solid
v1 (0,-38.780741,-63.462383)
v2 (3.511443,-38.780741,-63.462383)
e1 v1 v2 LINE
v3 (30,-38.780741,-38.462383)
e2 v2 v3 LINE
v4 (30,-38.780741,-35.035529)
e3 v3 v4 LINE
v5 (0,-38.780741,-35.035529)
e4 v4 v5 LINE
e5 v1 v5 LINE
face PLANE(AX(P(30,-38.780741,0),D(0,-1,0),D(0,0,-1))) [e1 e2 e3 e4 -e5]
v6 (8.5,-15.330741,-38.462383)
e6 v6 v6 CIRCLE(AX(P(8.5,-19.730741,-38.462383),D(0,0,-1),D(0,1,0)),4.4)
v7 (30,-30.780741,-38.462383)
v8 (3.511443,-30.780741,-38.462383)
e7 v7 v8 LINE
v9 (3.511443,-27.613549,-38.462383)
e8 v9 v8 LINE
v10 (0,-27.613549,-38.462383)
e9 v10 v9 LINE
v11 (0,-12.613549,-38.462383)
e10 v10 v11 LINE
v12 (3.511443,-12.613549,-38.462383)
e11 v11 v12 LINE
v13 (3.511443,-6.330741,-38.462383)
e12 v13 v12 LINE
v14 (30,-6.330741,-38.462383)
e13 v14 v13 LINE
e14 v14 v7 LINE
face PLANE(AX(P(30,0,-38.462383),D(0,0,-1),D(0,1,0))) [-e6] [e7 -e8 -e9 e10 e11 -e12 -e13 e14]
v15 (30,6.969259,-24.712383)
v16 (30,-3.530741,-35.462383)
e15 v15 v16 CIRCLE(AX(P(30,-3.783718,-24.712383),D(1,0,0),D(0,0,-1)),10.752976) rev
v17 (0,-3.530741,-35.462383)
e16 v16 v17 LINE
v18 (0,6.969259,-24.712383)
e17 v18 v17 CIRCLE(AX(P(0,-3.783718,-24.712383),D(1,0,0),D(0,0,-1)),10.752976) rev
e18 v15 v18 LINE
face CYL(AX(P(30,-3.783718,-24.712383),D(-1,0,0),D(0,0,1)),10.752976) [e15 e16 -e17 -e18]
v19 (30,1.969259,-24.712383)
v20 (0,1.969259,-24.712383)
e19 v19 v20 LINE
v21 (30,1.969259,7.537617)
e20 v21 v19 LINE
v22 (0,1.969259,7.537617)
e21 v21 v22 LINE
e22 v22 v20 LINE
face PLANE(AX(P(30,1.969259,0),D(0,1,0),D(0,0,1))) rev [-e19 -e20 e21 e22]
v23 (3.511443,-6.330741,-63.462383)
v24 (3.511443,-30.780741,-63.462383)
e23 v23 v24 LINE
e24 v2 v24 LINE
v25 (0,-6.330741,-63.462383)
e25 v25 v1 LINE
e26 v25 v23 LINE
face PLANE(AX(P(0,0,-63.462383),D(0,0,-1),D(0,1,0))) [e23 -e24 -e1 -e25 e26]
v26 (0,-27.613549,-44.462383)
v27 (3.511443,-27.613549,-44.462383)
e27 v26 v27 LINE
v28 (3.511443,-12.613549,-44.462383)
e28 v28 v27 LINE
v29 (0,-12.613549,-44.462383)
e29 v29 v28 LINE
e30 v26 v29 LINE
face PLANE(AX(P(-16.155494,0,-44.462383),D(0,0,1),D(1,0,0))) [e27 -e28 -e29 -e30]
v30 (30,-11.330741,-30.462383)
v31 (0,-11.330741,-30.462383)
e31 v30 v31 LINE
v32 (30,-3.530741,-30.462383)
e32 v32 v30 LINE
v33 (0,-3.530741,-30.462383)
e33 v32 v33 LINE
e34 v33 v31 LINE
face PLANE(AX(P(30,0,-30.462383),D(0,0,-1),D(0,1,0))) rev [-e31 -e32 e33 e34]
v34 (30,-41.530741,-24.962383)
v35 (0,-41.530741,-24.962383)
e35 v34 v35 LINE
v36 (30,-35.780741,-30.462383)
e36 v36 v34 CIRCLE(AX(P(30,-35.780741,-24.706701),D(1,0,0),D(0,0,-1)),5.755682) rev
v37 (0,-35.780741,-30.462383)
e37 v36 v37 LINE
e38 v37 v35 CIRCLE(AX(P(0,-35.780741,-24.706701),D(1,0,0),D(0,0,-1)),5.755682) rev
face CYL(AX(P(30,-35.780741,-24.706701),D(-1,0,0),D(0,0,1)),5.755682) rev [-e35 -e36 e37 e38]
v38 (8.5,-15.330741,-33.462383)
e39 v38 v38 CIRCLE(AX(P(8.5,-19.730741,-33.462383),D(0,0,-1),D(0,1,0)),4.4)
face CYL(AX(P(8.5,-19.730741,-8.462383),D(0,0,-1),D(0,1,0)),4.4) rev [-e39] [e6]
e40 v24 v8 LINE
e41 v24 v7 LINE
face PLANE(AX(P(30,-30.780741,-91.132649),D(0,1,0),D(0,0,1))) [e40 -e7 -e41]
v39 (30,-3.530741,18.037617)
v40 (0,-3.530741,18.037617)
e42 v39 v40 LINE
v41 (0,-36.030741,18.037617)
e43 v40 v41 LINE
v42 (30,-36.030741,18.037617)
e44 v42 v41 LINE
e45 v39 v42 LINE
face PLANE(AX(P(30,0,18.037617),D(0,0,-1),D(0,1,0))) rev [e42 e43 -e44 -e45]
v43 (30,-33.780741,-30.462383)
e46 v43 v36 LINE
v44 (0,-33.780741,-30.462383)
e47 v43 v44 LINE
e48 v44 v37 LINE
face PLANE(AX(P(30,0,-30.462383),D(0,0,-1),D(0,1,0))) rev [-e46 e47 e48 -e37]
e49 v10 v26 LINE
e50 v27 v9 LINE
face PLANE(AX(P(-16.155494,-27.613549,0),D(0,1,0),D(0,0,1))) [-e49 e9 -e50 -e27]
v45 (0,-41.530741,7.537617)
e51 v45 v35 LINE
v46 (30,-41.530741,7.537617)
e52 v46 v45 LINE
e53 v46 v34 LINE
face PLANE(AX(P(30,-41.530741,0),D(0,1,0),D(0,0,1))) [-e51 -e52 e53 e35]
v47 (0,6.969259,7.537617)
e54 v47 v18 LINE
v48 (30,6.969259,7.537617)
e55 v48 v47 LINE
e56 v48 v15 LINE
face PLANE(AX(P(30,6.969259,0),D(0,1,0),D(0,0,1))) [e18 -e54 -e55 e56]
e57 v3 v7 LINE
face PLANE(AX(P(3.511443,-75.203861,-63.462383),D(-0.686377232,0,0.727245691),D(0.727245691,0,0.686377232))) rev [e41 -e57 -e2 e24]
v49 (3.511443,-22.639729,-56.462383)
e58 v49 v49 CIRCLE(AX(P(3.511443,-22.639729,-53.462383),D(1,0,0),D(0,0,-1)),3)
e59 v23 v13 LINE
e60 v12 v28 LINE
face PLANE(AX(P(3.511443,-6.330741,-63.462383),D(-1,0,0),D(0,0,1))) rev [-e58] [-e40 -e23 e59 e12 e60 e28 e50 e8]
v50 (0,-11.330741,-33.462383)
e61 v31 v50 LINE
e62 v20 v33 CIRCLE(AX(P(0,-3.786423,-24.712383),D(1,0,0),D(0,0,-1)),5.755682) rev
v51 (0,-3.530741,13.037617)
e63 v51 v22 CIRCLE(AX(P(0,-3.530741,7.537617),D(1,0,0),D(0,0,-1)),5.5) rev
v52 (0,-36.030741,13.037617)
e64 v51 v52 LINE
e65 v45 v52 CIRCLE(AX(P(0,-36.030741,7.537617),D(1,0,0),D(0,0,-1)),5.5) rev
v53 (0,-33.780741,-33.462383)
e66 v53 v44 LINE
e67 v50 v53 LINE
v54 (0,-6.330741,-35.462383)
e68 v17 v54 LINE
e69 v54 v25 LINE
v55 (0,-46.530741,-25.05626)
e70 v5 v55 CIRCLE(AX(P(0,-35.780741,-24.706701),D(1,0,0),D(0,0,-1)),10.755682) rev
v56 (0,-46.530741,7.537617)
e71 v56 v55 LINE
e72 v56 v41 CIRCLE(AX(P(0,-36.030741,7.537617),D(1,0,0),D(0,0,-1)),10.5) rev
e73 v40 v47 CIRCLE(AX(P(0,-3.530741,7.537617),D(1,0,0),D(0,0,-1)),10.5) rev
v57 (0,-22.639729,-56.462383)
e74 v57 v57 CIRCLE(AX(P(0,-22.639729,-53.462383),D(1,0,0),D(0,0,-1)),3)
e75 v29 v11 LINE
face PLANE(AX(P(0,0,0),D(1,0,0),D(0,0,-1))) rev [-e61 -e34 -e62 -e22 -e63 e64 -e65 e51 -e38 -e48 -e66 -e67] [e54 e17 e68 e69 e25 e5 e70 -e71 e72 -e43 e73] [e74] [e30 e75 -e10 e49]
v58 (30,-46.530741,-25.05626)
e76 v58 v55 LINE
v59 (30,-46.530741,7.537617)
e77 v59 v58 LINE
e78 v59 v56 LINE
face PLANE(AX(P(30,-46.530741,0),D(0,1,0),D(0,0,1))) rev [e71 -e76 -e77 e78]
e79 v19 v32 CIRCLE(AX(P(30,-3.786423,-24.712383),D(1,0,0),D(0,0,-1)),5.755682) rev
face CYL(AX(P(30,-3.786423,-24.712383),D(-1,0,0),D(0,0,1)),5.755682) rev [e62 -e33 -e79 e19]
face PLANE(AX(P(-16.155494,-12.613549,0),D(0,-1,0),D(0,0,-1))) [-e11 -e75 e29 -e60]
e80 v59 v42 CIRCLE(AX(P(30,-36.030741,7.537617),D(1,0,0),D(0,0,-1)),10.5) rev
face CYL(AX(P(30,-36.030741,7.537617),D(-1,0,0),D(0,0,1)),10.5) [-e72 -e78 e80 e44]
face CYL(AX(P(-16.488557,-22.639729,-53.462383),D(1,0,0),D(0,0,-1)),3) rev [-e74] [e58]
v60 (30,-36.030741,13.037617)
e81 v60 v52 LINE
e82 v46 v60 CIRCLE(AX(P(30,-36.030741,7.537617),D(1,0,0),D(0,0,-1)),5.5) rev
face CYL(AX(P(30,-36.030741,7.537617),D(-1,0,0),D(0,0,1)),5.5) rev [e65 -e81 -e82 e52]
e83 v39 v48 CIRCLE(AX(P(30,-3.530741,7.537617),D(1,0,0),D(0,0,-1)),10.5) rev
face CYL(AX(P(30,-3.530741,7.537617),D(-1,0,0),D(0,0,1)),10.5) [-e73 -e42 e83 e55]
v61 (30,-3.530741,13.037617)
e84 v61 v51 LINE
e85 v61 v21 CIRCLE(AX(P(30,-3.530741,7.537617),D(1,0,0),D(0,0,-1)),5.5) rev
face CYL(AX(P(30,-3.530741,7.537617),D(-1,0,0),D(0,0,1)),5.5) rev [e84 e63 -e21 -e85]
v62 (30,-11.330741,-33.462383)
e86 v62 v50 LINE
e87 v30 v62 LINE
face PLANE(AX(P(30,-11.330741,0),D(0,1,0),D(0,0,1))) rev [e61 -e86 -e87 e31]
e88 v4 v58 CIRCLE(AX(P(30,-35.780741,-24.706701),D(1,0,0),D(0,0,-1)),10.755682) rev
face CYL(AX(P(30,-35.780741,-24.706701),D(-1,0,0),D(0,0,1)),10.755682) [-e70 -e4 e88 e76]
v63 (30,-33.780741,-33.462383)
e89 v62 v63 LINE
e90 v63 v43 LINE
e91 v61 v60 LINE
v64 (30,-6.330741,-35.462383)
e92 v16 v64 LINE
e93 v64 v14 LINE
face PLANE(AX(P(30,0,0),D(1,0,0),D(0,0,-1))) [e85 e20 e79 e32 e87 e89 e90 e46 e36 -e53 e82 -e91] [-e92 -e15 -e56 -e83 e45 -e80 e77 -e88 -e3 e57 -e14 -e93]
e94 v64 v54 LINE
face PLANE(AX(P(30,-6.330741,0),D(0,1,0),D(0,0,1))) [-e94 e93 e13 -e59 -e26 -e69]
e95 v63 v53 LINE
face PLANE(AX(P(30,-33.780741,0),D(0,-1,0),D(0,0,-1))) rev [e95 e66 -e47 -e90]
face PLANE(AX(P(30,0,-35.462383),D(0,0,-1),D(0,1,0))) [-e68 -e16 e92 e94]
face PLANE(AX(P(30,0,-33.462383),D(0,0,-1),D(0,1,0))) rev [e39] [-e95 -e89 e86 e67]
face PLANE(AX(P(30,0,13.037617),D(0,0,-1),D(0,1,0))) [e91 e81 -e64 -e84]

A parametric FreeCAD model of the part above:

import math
import FreeCAD as App
import Part
import Sketcher
from FreeCAD import Vector
Q = App.Units.Quantity


def add_polygon(sketch, points):
    """Adds a closed chain of lines whose ends are joined by coincident constraints."""
    first, n = sketch.GeometryCount, len(points)
    for a, b in zip(points, points[1:] + points[:1]):
        sketch.addGeometry(Part.LineSegment(App.Vector(*a, 0), App.Vector(*b, 0)), False)
    for i in range(n):
        sketch.addConstraint(Sketcher.Constraint("Coincident", first + i, 2, first + (i + 1) % n, 1))

doc = App.newDocument("Part")
body = doc.addObject("PartDesign::Body", "Body")

sketch1 = body.newObject("Sketcher::SketchObject", "Sketch")
sketch1.AttachmentSupport = (doc.getObject("YZ_Plane"), [""])
sketch1.MapMode = "FlatFace"
sketch1.addGeometry([
    Part.ArcOfCircle(Part.Circle(Vector(-3.8, -24.7, 0), Vector(0, 0, 1), 10.8), math.radians(-89), math.radians(0)),
    Part.LineSegment(Vector(7, -24.7, 0), Vector(7, 7.5, 0)),
    Part.ArcOfCircle(Part.Circle(Vector(-3.5, 7.5, 0), Vector(0, 0, 1), 10.5), math.radians(0), math.radians(90)),
    Part.LineSegment(Vector(-3.5, 18, 0), Vector(-36, 18, 0)),
    Part.ArcOfCircle(Part.Circle(Vector(-36, 7.5, 0), Vector(0, 0, 1), 10.5), math.radians(90), math.radians(180)),
    Part.LineSegment(Vector(-46.5, 7.5, 0), Vector(-46.5, -25.1, 0)),
    Part.ArcOfCircle(Part.Circle(Vector(-35.8, -24.7, 0), Vector(0, 0, 1), 10.8), math.radians(-178), math.radians(-106)),
    Part.LineSegment(Vector(-38.8, -35, 0), Vector(-38.8, -38.5, 0)),
    Part.LineSegment(Vector(-38.8, -38.5, 0), Vector(-6.3, -38.5, 0)),
    Part.LineSegment(Vector(-6.3, -38.5, 0), Vector(-6.3, -35.5, 0)),
    Part.LineSegment(Vector(-6.3, -35.5, 0), Vector(-3.5, -35.5, 0)),
    Part.ArcOfCircle(Part.Circle(Vector(-3.5, 7.5, 0), Vector(0, 0, 1), 5.5), math.radians(0), math.radians(90)),
    Part.LineSegment(Vector(2, 7.5, 0), Vector(2, -24.7, 0)),
    Part.ArcOfCircle(Part.Circle(Vector(-3.8, -24.7, 0), Vector(0, 0, 1), 5.8), math.radians(-87), math.radians(0)),
    Part.LineSegment(Vector(-3.5, -30.5, 0), Vector(-11.3, -30.5, 0)),
    Part.LineSegment(Vector(-11.3, -30.5, 0), Vector(-11.3, -33.5, 0)),
    Part.LineSegment(Vector(-11.3, -33.5, 0), Vector(-33.8, -33.5, 0)),
    Part.LineSegment(Vector(-33.8, -33.5, 0), Vector(-33.8, -30.5, 0)),
    Part.LineSegment(Vector(-33.8, -30.5, 0), Vector(-35.8, -30.5, 0)),
    Part.ArcOfCircle(Part.Circle(Vector(-35.8, -24.7, 0), Vector(0, 0, 1), 5.8), math.radians(-177), math.radians(-90)),
    Part.LineSegment(Vector(-41.5, -25, 0), Vector(-41.5, 7.5, 0)),
    Part.ArcOfCircle(Part.Circle(Vector(-36, 7.5, 0), Vector(0, 0, 1), 5.5), math.radians(90), math.radians(180)),
    Part.LineSegment(Vector(-36, 13, 0), Vector(-3.5, 13, 0)),
], False)
sketch1.addConstraint([
    Sketcher.Constraint("Tangent", 0, 2, 1, 1),
    Sketcher.Constraint("Tangent", 1, 2, 2, 1),
    Sketcher.Constraint("Tangent", 2, 2, 3, 1),
    Sketcher.Constraint("Tangent", 3, 2, 4, 1),
    Sketcher.Constraint("Tangent", 4, 2, 5, 1),
    Sketcher.Constraint("Coincident", 5, 2, 6, 1),
    Sketcher.Constraint("Coincident", 6, 2, 7, 1),
    Sketcher.Constraint("Coincident", 7, 2, 8, 1),
    Sketcher.Constraint("Coincident", 8, 2, 9, 1),
    Sketcher.Constraint("Coincident", 9, 2, 10, 1),
    Sketcher.Constraint("Coincident", 10, 2, 0, 1),
    Sketcher.Constraint("Tangent", 11, 1, 12, 1),
    Sketcher.Constraint("Tangent", 12, 2, 13, 2),
    Sketcher.Constraint("Coincident", 13, 1, 14, 1),
    Sketcher.Constraint("Coincident", 14, 2, 15, 1),
    Sketcher.Constraint("Coincident", 15, 2, 16, 1),
    Sketcher.Constraint("Coincident", 16, 2, 17, 1),
    Sketcher.Constraint("Coincident", 17, 2, 18, 1),
    Sketcher.Constraint("Tangent", 18, 2, 19, 2),
    Sketcher.Constraint("Coincident", 19, 1, 20, 1),
    Sketcher.Constraint("Tangent", 20, 2, 21, 2),
    Sketcher.Constraint("Tangent", 21, 1, 22, 1),
    Sketcher.Constraint("Tangent", 22, 2, 11, 2),
    Sketcher.Constraint("Vertical", 1),
    Sketcher.Constraint("Horizontal", 3),
    Sketcher.Constraint("Vertical", 5),
    Sketcher.Constraint("Vertical", 7),
    Sketcher.Constraint("Horizontal", 8),
    Sketcher.Constraint("Vertical", 9),
    Sketcher.Constraint("Horizontal", 10),
    Sketcher.Constraint("Vertical", 12),
    Sketcher.Constraint("Horizontal", 14),
    Sketcher.Constraint("Vertical", 15),
    Sketcher.Constraint("Horizontal", 16),
    Sketcher.Constraint("Vertical", 17),
    Sketcher.Constraint("Horizontal", 18),
    Sketcher.Constraint("Vertical", 20),
    Sketcher.Constraint("Horizontal", 22),
    Sketcher.Constraint("Coincident", 11, 3, 2, 3),
    Sketcher.Constraint("Coincident", 19, 3, 6, 3),
    Sketcher.Constraint("Coincident", 21, 3, 4, 3),
    Sketcher.Constraint("Equal", 2, 4),
    Sketcher.Constraint("Equal", 13, 19),
    Sketcher.Constraint("Horizontal", 0, 3, 13, 3),
    Sketcher.Constraint("Horizontal", 14, 2, 17, 2),
    Sketcher.Constraint("Vertical", 2, 2, 10, 2),
    Sketcher.Constraint("Vertical", 10, 2, 13, 1),
    Sketcher.Constraint("Equal", 9, 15),
    Sketcher.Constraint("Equal", 22, 20),
    Sketcher.Constraint("Radius", 2, Q("10.5 mm")),
    Sketcher.Constraint("Radius", 11, Q("5.5 mm")),
    Sketcher.Constraint("DistanceX", 18, 2, 18, 1, Q("2 mm")),
    Sketcher.Constraint("DistanceY", 9, 1, 9, 2, Q("3 mm")),
    Sketcher.Constraint("DistanceX", 3, 2, 3, 1, Q("32.5 mm")),
    Sketcher.Constraint("DistanceX", 10, 1, 10, 2, Q("2.8 mm")),
    Sketcher.Constraint("DistanceX", 14, 2, 14, 1, Q("7.8 mm")),
    Sketcher.Constraint("DistanceX", 6, 2, 6, 3, Q("3 mm")),
    Sketcher.Constraint("DistanceY", 10, 2, 13, 1, Q("5 mm")),
    Sketcher.Constraint("DistanceX", 8, 1, 8, 2, Q("32.45 mm")),
    Sketcher.Constraint("DistanceY", 1, 1, 1, 2, Q("32.25 mm")),
    Sketcher.Constraint("Radius", 6, Q("10.755682 mm")),
    Sketcher.Constraint("DistanceY", 6, 3, -1, 1, Q("24.706701 mm")),
    Sketcher.Constraint("DistanceX", 2, 3, -1, 1, Q("3.530741 mm")),
])
pad1 = body.newObject("PartDesign::Pad", "Pad")
pad1.Profile = sketch1
pad1.Length = 30

sketch2 = body.newObject("Sketcher::SketchObject", "Sketch001")
sketch2.AttachmentSupport = (doc.getObject("XY_Plane"), [""])
sketch2.MapMode = "FlatFace"
sketch2.AttachmentOffset = App.Placement(Vector(0, 0, -38.462383), App.Rotation())
sketch2.addGeometry(Part.Circle(Vector(8.5, -19.7, 0), Vector(0, 0, 1), 4.4), False)
sketch2.addConstraint([
    Sketcher.Constraint("Diameter", 0, Q("8.8 mm")),
    Sketcher.Constraint("DistanceX", -1, 1, 0, 3, Q("8.5 mm")),
    Sketcher.Constraint("DistanceY", 0, 3, -1, 1, Q("19.730741 mm")),
])
pocket1 = body.newObject("PartDesign::Pocket", "Pocket")
pocket1.Profile = sketch2
pocket1.Length = 30
pocket1.Reversed = True

sketch3 = body.newObject("Sketcher::SketchObject", "Sketch002")
sketch3.AttachmentSupport = (doc.getObject("XY_Plane"), [""])
sketch3.MapMode = "FlatFace"
sketch3.AttachmentOffset = App.Placement(Vector(0, 0, -38.462383), App.Rotation())
add_polygon(sketch3, [(3.5, -6.3), (3.5, -38.8), (0, -38.8), (0, -6.3)])
sketch3.addConstraint([
    Sketcher.Constraint("Vertical", 0),
    Sketcher.Constraint("Horizontal", 1),
    Sketcher.Constraint("Vertical", 2),
    Sketcher.Constraint("Horizontal", 3),
    Sketcher.Constraint("PointOnObject", 1, 2, -2),
    Sketcher.Constraint("DistanceY", 0, 2, 0, 1, Q("32.45 mm")),
    Sketcher.Constraint("DistanceX", 1, 2, 1, 1, Q("3.511443 mm")),
    Sketcher.Constraint("DistanceY", 0, 2, -1, 1, Q("38.780741 mm")),
])
pad2 = body.newObject("PartDesign::Pad", "Pad001")
pad2.Profile = sketch3
pad2.Length = 25
pad2.Reversed = True

sketch4 = body.newObject("Sketcher::SketchObject", "Sketch003")
sketch4.AttachmentSupport = (doc.getObject("YZ_Plane"), [""])
sketch4.MapMode = "FlatFace"
sketch4.AttachmentOffset = App.Placement(Vector(0, 0, 3.511443), App.Rotation())
sketch4.addGeometry(Part.Circle(Vector(-22.6, -53.5, 0), Vector(0, 0, 1), 3), False)
sketch4.addConstraint([
    Sketcher.Constraint("Diameter", 0, Q("6 mm")),
    Sketcher.Constraint("DistanceX", 0, 3, -1, 1, Q("22.639729 mm")),
    Sketcher.Constraint("DistanceY", 0, 3, -1, 1, Q("53.462383 mm")),
])
pocket2 = body.newObject("PartDesign::Pocket", "Pocket001")
pocket2.Profile = sketch4
pocket2.Length = 20

sketch5 = body.newObject("Sketcher::SketchObject", "Sketch004")
sketch5.AttachmentSupport = (doc.getObject("XY_Plane"), [""])
sketch5.MapMode = "FlatFace"
sketch5.AttachmentOffset = App.Placement(Vector(0, 0, -38.462383), App.Rotation())
add_polygon(sketch5, [(30, -31), (30, -39), (4, -39), (4, -31)])
sketch5.addConstraint([
    Sketcher.Constraint("Vertical", 0),
    Sketcher.Constraint("Horizontal", 1),
    Sketcher.Constraint("Vertical", 2),
    Sketcher.Constraint("Horizontal", 3),
    Sketcher.Constraint("DistanceY", 0, 2, 0, 1, Q("8 mm")),
    Sketcher.Constraint("DistanceX", -1, 1, 0, 2, Q("30 mm")),
    Sketcher.Constraint("DistanceX", 1, 2, 1, 1, Q("26.488557 mm")),
    Sketcher.Constraint("DistanceY", 0, 2, -1, 1, Q("38.780741 mm")),
])
pad3 = body.newObject("PartDesign::Pad", "Pad002")
pad3.Profile = sketch5
pad3.Length = 25
pad3.Reversed = True

sketch6 = body.newObject("Sketcher::SketchObject", "Sketch005")
sketch6.AttachmentSupport = (doc.getObject("XZ_Plane"), [""])
sketch6.MapMode = "FlatFace"
sketch6.AttachmentOffset = App.Placement(Vector(0, 0, 30.780741), App.Rotation())
add_polygon(sketch6, [(4, -63), (30, -38), (30, -63)])
sketch6.addConstraint([
    Sketcher.Constraint("Vertical", 1),
    Sketcher.Constraint("Horizontal", 2),
    Sketcher.Constraint("DistanceY", 1, 2, 1, 1, Q("25 mm")),
    Sketcher.Constraint("DistanceX", -1, 1, 0, 2, Q("30 mm")),
    Sketcher.Constraint("Distance", 0, Q("36.42312 mm")),
    Sketcher.Constraint("DistanceY", 0, 2, -1, 1, Q("38.462383 mm")),
])
pocket3 = body.newObject("PartDesign::Pocket", "Pocket002")
pocket3.Profile = sketch6
pocket3.Length = 8
pocket3.Reversed = True

sketch7 = body.newObject("Sketcher::SketchObject", "Sketch006")
sketch7.AttachmentSupport = (doc.getObject("YZ_Plane"), [""])
sketch7.MapMode = "FlatFace"
sketch7.AttachmentOffset = App.Placement(Vector(0, 0, 3.511443), App.Rotation())
add_polygon(sketch7, [(-13, -38), (-28, -38), (-28, -44), (-13, -44)])
sketch7.addConstraint([
    Sketcher.Constraint("Horizontal", 0),
    Sketcher.Constraint("Vertical", 1),
    Sketcher.Constraint("Horizontal", 2),
    Sketcher.Constraint("Vertical", 3),
    Sketcher.Constraint("DistanceX", 0, 2, 0, 1, Q("15 mm")),
    Sketcher.Constraint("DistanceY", 1, 2, 1, 1, Q("6 mm")),
    Sketcher.Constraint("DistanceX", 0, 2, -1, 1, Q("27.613549 mm")),
    Sketcher.Constraint("DistanceY", 0, 2, -1, 1, Q("38.462383 mm")),
])
pocket4 = body.newObject("PartDesign::Pocket", "Pocket003")
pocket4.Profile = sketch7
pocket4.Length = 3.511443

doc.recompute()
